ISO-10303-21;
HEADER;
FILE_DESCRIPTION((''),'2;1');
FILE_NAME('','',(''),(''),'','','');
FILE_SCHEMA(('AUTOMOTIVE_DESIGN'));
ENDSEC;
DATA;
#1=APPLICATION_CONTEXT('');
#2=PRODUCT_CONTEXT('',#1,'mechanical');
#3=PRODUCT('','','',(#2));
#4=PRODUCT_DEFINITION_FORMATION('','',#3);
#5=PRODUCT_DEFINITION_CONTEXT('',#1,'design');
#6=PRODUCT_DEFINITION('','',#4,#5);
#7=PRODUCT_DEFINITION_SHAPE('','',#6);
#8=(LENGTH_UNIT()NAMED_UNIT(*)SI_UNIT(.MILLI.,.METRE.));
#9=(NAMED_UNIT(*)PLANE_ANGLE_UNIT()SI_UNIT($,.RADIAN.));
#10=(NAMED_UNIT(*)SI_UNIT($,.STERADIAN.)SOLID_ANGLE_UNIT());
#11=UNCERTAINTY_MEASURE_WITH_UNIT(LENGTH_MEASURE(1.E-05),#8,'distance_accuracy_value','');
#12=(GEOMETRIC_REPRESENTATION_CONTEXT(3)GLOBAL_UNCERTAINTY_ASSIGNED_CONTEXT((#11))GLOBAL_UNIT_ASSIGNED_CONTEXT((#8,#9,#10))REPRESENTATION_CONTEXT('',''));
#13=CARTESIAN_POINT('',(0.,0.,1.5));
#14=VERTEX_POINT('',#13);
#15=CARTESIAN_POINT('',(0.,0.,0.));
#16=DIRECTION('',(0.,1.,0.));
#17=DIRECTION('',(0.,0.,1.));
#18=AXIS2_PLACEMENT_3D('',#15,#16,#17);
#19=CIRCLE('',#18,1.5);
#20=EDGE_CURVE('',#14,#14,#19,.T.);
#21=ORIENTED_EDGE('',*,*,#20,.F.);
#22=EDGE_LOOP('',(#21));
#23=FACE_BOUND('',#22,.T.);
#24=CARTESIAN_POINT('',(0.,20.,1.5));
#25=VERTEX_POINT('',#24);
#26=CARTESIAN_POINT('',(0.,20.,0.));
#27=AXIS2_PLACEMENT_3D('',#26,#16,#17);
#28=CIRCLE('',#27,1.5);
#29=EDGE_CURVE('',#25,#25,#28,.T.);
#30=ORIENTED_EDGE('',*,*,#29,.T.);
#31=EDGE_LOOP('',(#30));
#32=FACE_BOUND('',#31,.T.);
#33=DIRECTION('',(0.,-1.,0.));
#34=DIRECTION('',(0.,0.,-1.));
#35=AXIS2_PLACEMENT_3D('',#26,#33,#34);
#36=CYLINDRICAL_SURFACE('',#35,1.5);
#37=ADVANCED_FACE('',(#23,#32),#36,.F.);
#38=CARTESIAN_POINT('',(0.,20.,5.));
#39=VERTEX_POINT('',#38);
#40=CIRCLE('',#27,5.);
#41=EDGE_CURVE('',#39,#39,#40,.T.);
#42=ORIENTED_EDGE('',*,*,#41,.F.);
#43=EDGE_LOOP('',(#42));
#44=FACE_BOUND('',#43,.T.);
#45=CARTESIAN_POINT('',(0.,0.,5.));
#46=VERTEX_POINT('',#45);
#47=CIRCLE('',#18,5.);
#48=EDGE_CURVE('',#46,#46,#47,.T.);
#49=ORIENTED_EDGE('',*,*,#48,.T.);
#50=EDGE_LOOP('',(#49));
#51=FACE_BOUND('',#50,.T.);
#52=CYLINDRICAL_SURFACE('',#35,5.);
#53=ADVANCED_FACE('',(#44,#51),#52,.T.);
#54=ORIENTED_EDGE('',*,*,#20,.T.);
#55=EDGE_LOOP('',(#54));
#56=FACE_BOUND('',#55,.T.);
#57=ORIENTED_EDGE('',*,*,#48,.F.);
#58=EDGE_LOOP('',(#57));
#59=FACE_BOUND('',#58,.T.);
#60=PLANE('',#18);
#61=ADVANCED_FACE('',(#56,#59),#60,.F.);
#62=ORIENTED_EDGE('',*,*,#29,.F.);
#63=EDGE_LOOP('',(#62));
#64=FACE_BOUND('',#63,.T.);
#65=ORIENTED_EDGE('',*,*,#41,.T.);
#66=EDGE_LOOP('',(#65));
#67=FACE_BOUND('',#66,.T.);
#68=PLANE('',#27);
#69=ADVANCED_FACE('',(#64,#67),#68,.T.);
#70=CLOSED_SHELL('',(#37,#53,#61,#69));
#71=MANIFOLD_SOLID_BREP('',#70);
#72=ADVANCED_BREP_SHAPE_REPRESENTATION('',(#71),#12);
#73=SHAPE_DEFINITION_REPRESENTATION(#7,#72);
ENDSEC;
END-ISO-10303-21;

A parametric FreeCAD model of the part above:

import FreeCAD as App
import Part
import Sketcher

V = App.Vector
Q = App.Units.Quantity

doc = App.newDocument("Part")
params = doc.addObject("Spreadsheet::Sheet", "Params")
for row, (alias, value) in enumerate([
    ("sketch1_diameter", "10 mm"),
    ("sketch1_diameter2", "3 mm"),
    ("pad1_length", "20 mm"),
], start=1):
    params.set(f"A{row}", alias)
    params.set(f"B{row}", "=" + value)
    params.setAlias(f"B{row}", alias)

body = doc.addObject("PartDesign::Body", "Body")

# Sketch on XZ plane
sketch1 = doc.addObject("Sketcher::SketchObject", "Sketch")
body.addObject(sketch1)
sketch1.AttachmentSupport = (doc.XZ_Plane, [""])
sketch1.MapMode = "FlatFace"
sketch1.addGeometry([
    Part.Circle(V(0, 0, 0), V(0, 0, 1), 5),
    Part.Circle(V(0, 0, 0), V(0, 0, 1), 1.5),
], False)
sketch1.addConstraint([
    Sketcher.Constraint("Coincident", 0, 3, -1, 1),
    Sketcher.Constraint("Coincident", 1, 3, -1, 1),
    Sketcher.Constraint("Diameter", 0, Q("10 mm")),
    Sketcher.Constraint("Diameter", 1, Q("3 mm")),
])
sketch1.setExpression("Constraints[2]", "Params.sketch1_diameter")
sketch1.setExpression("Constraints[3]", "Params.sketch1_diameter2")
pad1 = doc.addObject("PartDesign::Pad", "Pad")
body.addObject(pad1)
pad1.Profile = sketch1
pad1.setExpression("Length", "Params.pad1_length")
pad1.Reversed = True

doc.recompute()
